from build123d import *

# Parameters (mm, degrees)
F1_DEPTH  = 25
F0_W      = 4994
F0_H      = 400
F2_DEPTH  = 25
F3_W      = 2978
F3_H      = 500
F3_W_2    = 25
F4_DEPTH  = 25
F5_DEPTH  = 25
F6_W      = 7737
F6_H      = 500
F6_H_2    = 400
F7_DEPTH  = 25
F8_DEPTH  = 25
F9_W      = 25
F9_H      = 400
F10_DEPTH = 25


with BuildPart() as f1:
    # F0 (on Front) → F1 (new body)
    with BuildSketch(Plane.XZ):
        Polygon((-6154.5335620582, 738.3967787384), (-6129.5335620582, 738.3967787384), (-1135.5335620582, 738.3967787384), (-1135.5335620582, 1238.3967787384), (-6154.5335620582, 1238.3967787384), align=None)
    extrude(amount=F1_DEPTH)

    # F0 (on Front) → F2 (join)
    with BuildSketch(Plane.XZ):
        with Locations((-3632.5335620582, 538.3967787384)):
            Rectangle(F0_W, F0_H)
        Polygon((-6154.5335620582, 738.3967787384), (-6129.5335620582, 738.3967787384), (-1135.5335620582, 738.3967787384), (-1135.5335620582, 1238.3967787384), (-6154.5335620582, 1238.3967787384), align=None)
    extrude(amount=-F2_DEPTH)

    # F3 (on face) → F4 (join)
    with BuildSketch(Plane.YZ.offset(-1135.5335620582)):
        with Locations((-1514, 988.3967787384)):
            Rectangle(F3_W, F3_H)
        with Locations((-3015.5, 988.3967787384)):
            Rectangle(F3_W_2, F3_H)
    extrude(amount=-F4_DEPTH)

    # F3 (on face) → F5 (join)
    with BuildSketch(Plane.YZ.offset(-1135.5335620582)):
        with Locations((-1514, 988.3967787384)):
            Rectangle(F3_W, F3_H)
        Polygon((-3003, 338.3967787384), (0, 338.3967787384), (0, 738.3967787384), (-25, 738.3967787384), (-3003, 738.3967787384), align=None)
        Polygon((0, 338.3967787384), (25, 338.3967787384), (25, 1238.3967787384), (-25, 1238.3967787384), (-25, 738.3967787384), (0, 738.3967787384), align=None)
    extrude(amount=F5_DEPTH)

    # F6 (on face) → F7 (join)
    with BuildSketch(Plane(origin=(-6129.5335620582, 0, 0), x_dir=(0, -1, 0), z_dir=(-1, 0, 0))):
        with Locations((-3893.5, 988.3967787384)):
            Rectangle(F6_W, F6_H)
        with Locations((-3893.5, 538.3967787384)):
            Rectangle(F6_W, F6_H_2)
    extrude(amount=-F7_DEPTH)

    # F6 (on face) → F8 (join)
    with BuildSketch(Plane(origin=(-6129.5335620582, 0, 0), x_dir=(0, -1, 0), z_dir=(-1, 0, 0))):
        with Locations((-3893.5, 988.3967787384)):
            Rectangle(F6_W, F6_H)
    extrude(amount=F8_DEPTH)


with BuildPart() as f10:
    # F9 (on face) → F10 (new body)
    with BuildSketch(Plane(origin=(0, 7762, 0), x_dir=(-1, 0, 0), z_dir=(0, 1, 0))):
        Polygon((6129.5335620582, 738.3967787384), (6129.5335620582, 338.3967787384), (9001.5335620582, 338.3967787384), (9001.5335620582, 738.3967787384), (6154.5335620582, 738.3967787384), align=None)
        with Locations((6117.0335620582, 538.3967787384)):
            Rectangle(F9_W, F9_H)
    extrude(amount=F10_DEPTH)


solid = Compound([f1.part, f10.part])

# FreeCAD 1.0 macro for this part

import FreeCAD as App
import Part
import Sketcher

V = App.Vector
Q = App.Units.Quantity

doc = App.newDocument("Part")
body = doc.addObject("PartDesign::Body", "Body")

sketch1 = body.newObject("Sketcher::SketchObject", "Sketch")
sketch1.AttachmentSupport = (doc.getObject("XZ_Plane"), [""])
sketch1.MapMode = "FlatFace"
sketch1.addGeometry([
    Part.LineSegment(V(-6155, 738, 0), V(-1136, 738, 0)),
    Part.LineSegment(V(-1136, 738, 0), V(-1136, 1238, 0)),
    Part.LineSegment(V(-1136, 1238, 0), V(-6155, 1238, 0)),
    Part.LineSegment(V(-6155, 1238, 0), V(-6155, 738, 0)),
], False)
sketch1.addConstraint([
    Sketcher.Constraint("Coincident", 0, 2, 1, 1),
    Sketcher.Constraint("Coincident", 1, 2, 2, 1),
    Sketcher.Constraint("Coincident", 2, 2, 3, 1),
    Sketcher.Constraint("Coincident", 3, 2, 0, 1),
    Sketcher.Constraint("Horizontal", 0),
    Sketcher.Constraint("Vertical", 1),
    Sketcher.Constraint("Horizontal", 2),
    Sketcher.Constraint("Vertical", 3),
    Sketcher.Constraint("DistanceX", 0, 1, 0, 2, Q("5019 mm")),
    Sketcher.Constraint("DistanceY", 1, 1, 1, 2, Q("500 mm")),
    Sketcher.Constraint("DistanceY", -1, 1, 0, 2, Q("738.396779 mm")),
    Sketcher.Constraint("DistanceX", 0, 2, -1, 1, Q("1135.533562 mm")),
])
pad1 = body.newObject("PartDesign::Pad", "Pad")
pad1.Profile = sketch1
pad1.Length = 25

sketch2 = body.newObject("Sketcher::SketchObject", "Sketch001")
sketch2.AttachmentSupport = (doc.getObject("XZ_Plane"), [""])
sketch2.MapMode = "FlatFace"
sketch2.addGeometry([
    Part.LineSegment(V(-6130, 738, 0), V(-6130, 338, 0)),
    Part.LineSegment(V(-6130, 338, 0), V(-1136, 338, 0)),
    Part.LineSegment(V(-1136, 338, 0), V(-1136, 1238, 0)),
    Part.LineSegment(V(-1136, 1238, 0), V(-6155, 1238, 0)),
    Part.LineSegment(V(-6155, 1238, 0), V(-6155, 738, 0)),
    Part.LineSegment(V(-6155, 738, 0), V(-6130, 738, 0)),
], False)
sketch2.addConstraint([
    Sketcher.Constraint("Coincident", 0, 2, 1, 1),
    Sketcher.Constraint("Coincident", 1, 2, 2, 1),
    Sketcher.Constraint("Coincident", 2, 2, 3, 1),
    Sketcher.Constraint("Coincident", 3, 2, 4, 1),
    Sketcher.Constraint("Coincident", 4, 2, 5, 1),
    Sketcher.Constraint("Coincident", 5, 2, 0, 1),
    Sketcher.Constraint("Vertical", 0),
    Sketcher.Constraint("Horizontal", 1),
    Sketcher.Constraint("Vertical", 2),
    Sketcher.Constraint("Horizontal", 3),
    Sketcher.Constraint("Vertical", 4),
    Sketcher.Constraint("Horizontal", 5),
    Sketcher.Constraint("DistanceX", 1, 1, 1, 2, Q("4994 mm")),
    Sketcher.Constraint("DistanceX", 3, 2, 3, 1, Q("5019 mm")),
    Sketcher.Constraint("DistanceY", 0, 2, 0, 1, Q("400 mm")),
    Sketcher.Constraint("DistanceY", 2, 1, 2, 2, Q("900 mm")),
    Sketcher.Constraint("DistanceY", -1, 1, 0, 2, Q("338.396779 mm")),
    Sketcher.Constraint("DistanceX", 0, 2, -1, 1, Q("6129.533562 mm")),
])
pad2 = body.newObject("PartDesign::Pad", "Pad001")
pad2.Profile = sketch2
pad2.Length = 25
pad2.Reversed = True

sketch3 = body.newObject("Sketcher::SketchObject", "Sketch002")
sketch3.AttachmentSupport = (doc.getObject("YZ_Plane"), [""])
sketch3.MapMode = "FlatFace"
sketch3.AttachmentOffset = App.Placement(V(0, 0, -1135.533562), App.Rotation())
sketch3.addGeometry([
    Part.LineSegment(V(-25, 738, 0), V(-25, 1238, 0)),
    Part.LineSegment(V(-25, 1238, 0), V(-3028, 1238, 0)),
    Part.LineSegment(V(-3028, 1238, 0), V(-3028, 738, 0)),
    Part.LineSegment(V(-3028, 738, 0), V(-25, 738, 0)),
], False)
sketch3.addConstraint([
    Sketcher.Constraint("Coincident", 0, 2, 1, 1),
    Sketcher.Constraint("Coincident", 1, 2, 2, 1),
    Sketcher.Constraint("Coincident", 2, 2, 3, 1),
    Sketcher.Constraint("Coincident", 3, 2, 0, 1),
    Sketcher.Constraint("Vertical", 0),
    Sketcher.Constraint("Horizontal", 1),
    Sketcher.Constraint("Vertical", 2),
    Sketcher.Constraint("Horizontal", 3),
    Sketcher.Constraint("DistanceX", 1, 2, 1, 1, Q("3003 mm")),
    Sketcher.Constraint("DistanceY", 0, 1, 0, 2, Q("500 mm")),
    Sketcher.Constraint("DistanceX", 0, 2, -1, 1, Q("25 mm")),
    Sketcher.Constraint("DistanceY", -1, 1, 0, 2, Q("1238.396779 mm")),
])
pad3 = body.newObject("PartDesign::Pad", "Pad002")
pad3.Profile = sketch3
pad3.Length = 25
pad3.Reversed = True

sketch4 = body.newObject("Sketcher::SketchObject", "Sketch003")
sketch4.AttachmentSupport = (doc.getObject("YZ_Plane"), [""])
sketch4.MapMode = "FlatFace"
sketch4.AttachmentOffset = App.Placement(V(0, 0, -1135.533562), App.Rotation())
sketch4.addGeometry([
    Part.LineSegment(V(-3003, 1238, 0), V(-3003, 338, 0)),
    Part.LineSegment(V(-3003, 338, 0), V(25, 338, 0)),
    Part.LineSegment(V(25, 338, 0), V(25, 1238, 0)),
    Part.LineSegment(V(25, 1238, 0), V(-3003, 1238, 0)),
], False)
sketch4.addConstraint([
    Sketcher.Constraint("Coincident", 0, 2, 1, 1),
    Sketcher.Constraint("Coincident", 1, 2, 2, 1),
    Sketcher.Constraint("Coincident", 2, 2, 3, 1),
    Sketcher.Constraint("Coincident", 3, 2, 0, 1),
    Sketcher.Constraint("Vertical", 0),
    Sketcher.Constraint("Horizontal", 1),
    Sketcher.Constraint("Vertical", 2),
    Sketcher.Constraint("Horizontal", 3),
    Sketcher.Constraint("DistanceX", 1, 1, 1, 2, Q("3028 mm")),
    Sketcher.Constraint("DistanceY", 0, 2, 0, 1, Q("900 mm")),
    Sketcher.Constraint("DistanceX", 0, 2, -1, 1, Q("3003 mm")),
    Sketcher.Constraint("DistanceY", -1, 1, 0, 2, Q("338.396779 mm")),
])
pad4 = body.newObject("PartDesign::Pad", "Pad003")
pad4.Profile = sketch4
pad4.Length = 25

sketch5 = body.newObject("Sketcher::SketchObject", "Sketch004")
sketch5.AttachmentSupport = (doc.getObject("YZ_Plane"), [""])
sketch5.MapMode = "FlatFace"
sketch5.AttachmentOffset = App.Placement(V(0, 0, -6129.533562), App.Rotation())
sketch5.addGeometry([
    Part.LineSegment(V(7762, 1238, 0), V(7762, 338, 0)),
    Part.LineSegment(V(7762, 338, 0), V(25, 338, 0)),
    Part.LineSegment(V(25, 338, 0), V(25, 1238, 0)),
    Part.LineSegment(V(25, 1238, 0), V(7762, 1238, 0)),
], False)
sketch5.addConstraint([
    Sketcher.Constraint("Coincident", 0, 2, 1, 1),
    Sketcher.Constraint("Coincident", 1, 2, 2, 1),
    Sketcher.Constraint("Coincident", 2, 2, 3, 1),
    Sketcher.Constraint("Coincident", 3, 2, 0, 1),
    Sketcher.Constraint("Vertical", 0),
    Sketcher.Constraint("Horizontal", 1),
    Sketcher.Constraint("Vertical", 2),
    Sketcher.Constraint("Horizontal", 3),
    Sketcher.Constraint("DistanceX", 1, 2, 1, 1, Q("7737 mm")),
    Sketcher.Constraint("DistanceY", 0, 2, 0, 1, Q("900 mm")),
    Sketcher.Constraint("DistanceX", -1, 1, 0, 2, Q("7762 mm")),
    Sketcher.Constraint("DistanceY", -1, 1, 0, 2, Q("338.396779 mm")),
])
pad5 = body.newObject("PartDesign::Pad", "Pad004")
pad5.Profile = sketch5
pad5.Length = 25

sketch6 = body.newObject("Sketcher::SketchObject", "Sketch005")
sketch6.AttachmentSupport = (doc.getObject("YZ_Plane"), [""])
sketch6.MapMode = "FlatFace"
sketch6.AttachmentOffset = App.Placement(V(0, 0, -6129.533562), App.Rotation())
sketch6.addGeometry([
    Part.LineSegment(V(7762, 1238, 0), V(7762, 738, 0)),
    Part.LineSegment(V(7762, 738, 0), V(25, 738, 0)),
    Part.LineSegment(V(25, 738, 0), V(25, 1238, 0)),
    Part.LineSegment(V(25, 1238, 0), V(7762, 1238, 0)),
], False)
sketch6.addConstraint([
    Sketcher.Constraint("Coincident", 0, 2, 1, 1),
    Sketcher.Constraint("Coincident", 1, 2, 2, 1),
    Sketcher.Constraint("Coincident", 2, 2, 3, 1),
    Sketcher.Constraint("Coincident", 3, 2, 0, 1),
    Sketcher.Constraint("Vertical", 0),
    Sketcher.Constraint("Horizontal", 1),
    Sketcher.Constraint("Vertical", 2),
    Sketcher.Constraint("Horizontal", 3),
    Sketcher.Constraint("DistanceX", 1, 2, 1, 1, Q("7737 mm")),
    Sketcher.Constraint("DistanceY", 0, 2, 0, 1, Q("500 mm")),
    Sketcher.Constraint("DistanceX", -1, 1, 0, 2, Q("7762 mm")),
    Sketcher.Constraint("DistanceY", -1, 1, 0, 2, Q("738.396779 mm")),
])
pad6 = body.newObject("PartDesign::Pad", "Pad005")
pad6.Profile = sketch6
pad6.Length = 25
pad6.Reversed = True
body2 = doc.addObject("PartDesign::Body", "Body001")

sketch7 = body2.newObject("Sketcher::SketchObject", "Sketch006")
sketch7.AttachmentSupport = (doc.getObject("XZ_Plane001"), [""])
sketch7.MapMode = "FlatFace"
sketch7.AttachmentOffset = App.Placement(V(0, 0, -7762), App.Rotation())
sketch7.addGeometry([
    Part.LineSegment(V(-9002, 338, 0), V(-9002, 738, 0)),
    Part.LineSegment(V(-9002, 738, 0), V(-6105, 738, 0)),
    Part.LineSegment(V(-6105, 738, 0), V(-6105, 338, 0)),
    Part.LineSegment(V(-6105, 338, 0), V(-9002, 338, 0)),
], False)
sketch7.addConstraint([
    Sketcher.Constraint("Coincident", 0, 2, 1, 1),
    Sketcher.Constraint("Coincident", 1, 2, 2, 1),
    Sketcher.Constraint("Coincident", 2, 2, 3, 1),
    Sketcher.Constraint("Coincident", 3, 2, 0, 1),
    Sketcher.Constraint("Vertical", 0),
    Sketcher.Constraint("Horizontal", 1),
    Sketcher.Constraint("Vertical", 2),
    Sketcher.Constraint("Horizontal", 3),
    Sketcher.Constraint("DistanceX", 1, 1, 1, 2, Q("2897 mm")),
    Sketcher.Constraint("DistanceY", 0, 1, 0, 2, Q("400 mm")),
    Sketcher.Constraint("DistanceY", -1, 1, 0, 2, Q("738.396779 mm")),
    Sketcher.Constraint("DistanceX", 0, 2, -1, 1, Q("9001.533562 mm")),
])
pad7 = body2.newObject("PartDesign::Pad", "Pad006")
pad7.Profile = sketch7
pad7.Length = 25
pad7.Reversed = True

doc.recompute()
